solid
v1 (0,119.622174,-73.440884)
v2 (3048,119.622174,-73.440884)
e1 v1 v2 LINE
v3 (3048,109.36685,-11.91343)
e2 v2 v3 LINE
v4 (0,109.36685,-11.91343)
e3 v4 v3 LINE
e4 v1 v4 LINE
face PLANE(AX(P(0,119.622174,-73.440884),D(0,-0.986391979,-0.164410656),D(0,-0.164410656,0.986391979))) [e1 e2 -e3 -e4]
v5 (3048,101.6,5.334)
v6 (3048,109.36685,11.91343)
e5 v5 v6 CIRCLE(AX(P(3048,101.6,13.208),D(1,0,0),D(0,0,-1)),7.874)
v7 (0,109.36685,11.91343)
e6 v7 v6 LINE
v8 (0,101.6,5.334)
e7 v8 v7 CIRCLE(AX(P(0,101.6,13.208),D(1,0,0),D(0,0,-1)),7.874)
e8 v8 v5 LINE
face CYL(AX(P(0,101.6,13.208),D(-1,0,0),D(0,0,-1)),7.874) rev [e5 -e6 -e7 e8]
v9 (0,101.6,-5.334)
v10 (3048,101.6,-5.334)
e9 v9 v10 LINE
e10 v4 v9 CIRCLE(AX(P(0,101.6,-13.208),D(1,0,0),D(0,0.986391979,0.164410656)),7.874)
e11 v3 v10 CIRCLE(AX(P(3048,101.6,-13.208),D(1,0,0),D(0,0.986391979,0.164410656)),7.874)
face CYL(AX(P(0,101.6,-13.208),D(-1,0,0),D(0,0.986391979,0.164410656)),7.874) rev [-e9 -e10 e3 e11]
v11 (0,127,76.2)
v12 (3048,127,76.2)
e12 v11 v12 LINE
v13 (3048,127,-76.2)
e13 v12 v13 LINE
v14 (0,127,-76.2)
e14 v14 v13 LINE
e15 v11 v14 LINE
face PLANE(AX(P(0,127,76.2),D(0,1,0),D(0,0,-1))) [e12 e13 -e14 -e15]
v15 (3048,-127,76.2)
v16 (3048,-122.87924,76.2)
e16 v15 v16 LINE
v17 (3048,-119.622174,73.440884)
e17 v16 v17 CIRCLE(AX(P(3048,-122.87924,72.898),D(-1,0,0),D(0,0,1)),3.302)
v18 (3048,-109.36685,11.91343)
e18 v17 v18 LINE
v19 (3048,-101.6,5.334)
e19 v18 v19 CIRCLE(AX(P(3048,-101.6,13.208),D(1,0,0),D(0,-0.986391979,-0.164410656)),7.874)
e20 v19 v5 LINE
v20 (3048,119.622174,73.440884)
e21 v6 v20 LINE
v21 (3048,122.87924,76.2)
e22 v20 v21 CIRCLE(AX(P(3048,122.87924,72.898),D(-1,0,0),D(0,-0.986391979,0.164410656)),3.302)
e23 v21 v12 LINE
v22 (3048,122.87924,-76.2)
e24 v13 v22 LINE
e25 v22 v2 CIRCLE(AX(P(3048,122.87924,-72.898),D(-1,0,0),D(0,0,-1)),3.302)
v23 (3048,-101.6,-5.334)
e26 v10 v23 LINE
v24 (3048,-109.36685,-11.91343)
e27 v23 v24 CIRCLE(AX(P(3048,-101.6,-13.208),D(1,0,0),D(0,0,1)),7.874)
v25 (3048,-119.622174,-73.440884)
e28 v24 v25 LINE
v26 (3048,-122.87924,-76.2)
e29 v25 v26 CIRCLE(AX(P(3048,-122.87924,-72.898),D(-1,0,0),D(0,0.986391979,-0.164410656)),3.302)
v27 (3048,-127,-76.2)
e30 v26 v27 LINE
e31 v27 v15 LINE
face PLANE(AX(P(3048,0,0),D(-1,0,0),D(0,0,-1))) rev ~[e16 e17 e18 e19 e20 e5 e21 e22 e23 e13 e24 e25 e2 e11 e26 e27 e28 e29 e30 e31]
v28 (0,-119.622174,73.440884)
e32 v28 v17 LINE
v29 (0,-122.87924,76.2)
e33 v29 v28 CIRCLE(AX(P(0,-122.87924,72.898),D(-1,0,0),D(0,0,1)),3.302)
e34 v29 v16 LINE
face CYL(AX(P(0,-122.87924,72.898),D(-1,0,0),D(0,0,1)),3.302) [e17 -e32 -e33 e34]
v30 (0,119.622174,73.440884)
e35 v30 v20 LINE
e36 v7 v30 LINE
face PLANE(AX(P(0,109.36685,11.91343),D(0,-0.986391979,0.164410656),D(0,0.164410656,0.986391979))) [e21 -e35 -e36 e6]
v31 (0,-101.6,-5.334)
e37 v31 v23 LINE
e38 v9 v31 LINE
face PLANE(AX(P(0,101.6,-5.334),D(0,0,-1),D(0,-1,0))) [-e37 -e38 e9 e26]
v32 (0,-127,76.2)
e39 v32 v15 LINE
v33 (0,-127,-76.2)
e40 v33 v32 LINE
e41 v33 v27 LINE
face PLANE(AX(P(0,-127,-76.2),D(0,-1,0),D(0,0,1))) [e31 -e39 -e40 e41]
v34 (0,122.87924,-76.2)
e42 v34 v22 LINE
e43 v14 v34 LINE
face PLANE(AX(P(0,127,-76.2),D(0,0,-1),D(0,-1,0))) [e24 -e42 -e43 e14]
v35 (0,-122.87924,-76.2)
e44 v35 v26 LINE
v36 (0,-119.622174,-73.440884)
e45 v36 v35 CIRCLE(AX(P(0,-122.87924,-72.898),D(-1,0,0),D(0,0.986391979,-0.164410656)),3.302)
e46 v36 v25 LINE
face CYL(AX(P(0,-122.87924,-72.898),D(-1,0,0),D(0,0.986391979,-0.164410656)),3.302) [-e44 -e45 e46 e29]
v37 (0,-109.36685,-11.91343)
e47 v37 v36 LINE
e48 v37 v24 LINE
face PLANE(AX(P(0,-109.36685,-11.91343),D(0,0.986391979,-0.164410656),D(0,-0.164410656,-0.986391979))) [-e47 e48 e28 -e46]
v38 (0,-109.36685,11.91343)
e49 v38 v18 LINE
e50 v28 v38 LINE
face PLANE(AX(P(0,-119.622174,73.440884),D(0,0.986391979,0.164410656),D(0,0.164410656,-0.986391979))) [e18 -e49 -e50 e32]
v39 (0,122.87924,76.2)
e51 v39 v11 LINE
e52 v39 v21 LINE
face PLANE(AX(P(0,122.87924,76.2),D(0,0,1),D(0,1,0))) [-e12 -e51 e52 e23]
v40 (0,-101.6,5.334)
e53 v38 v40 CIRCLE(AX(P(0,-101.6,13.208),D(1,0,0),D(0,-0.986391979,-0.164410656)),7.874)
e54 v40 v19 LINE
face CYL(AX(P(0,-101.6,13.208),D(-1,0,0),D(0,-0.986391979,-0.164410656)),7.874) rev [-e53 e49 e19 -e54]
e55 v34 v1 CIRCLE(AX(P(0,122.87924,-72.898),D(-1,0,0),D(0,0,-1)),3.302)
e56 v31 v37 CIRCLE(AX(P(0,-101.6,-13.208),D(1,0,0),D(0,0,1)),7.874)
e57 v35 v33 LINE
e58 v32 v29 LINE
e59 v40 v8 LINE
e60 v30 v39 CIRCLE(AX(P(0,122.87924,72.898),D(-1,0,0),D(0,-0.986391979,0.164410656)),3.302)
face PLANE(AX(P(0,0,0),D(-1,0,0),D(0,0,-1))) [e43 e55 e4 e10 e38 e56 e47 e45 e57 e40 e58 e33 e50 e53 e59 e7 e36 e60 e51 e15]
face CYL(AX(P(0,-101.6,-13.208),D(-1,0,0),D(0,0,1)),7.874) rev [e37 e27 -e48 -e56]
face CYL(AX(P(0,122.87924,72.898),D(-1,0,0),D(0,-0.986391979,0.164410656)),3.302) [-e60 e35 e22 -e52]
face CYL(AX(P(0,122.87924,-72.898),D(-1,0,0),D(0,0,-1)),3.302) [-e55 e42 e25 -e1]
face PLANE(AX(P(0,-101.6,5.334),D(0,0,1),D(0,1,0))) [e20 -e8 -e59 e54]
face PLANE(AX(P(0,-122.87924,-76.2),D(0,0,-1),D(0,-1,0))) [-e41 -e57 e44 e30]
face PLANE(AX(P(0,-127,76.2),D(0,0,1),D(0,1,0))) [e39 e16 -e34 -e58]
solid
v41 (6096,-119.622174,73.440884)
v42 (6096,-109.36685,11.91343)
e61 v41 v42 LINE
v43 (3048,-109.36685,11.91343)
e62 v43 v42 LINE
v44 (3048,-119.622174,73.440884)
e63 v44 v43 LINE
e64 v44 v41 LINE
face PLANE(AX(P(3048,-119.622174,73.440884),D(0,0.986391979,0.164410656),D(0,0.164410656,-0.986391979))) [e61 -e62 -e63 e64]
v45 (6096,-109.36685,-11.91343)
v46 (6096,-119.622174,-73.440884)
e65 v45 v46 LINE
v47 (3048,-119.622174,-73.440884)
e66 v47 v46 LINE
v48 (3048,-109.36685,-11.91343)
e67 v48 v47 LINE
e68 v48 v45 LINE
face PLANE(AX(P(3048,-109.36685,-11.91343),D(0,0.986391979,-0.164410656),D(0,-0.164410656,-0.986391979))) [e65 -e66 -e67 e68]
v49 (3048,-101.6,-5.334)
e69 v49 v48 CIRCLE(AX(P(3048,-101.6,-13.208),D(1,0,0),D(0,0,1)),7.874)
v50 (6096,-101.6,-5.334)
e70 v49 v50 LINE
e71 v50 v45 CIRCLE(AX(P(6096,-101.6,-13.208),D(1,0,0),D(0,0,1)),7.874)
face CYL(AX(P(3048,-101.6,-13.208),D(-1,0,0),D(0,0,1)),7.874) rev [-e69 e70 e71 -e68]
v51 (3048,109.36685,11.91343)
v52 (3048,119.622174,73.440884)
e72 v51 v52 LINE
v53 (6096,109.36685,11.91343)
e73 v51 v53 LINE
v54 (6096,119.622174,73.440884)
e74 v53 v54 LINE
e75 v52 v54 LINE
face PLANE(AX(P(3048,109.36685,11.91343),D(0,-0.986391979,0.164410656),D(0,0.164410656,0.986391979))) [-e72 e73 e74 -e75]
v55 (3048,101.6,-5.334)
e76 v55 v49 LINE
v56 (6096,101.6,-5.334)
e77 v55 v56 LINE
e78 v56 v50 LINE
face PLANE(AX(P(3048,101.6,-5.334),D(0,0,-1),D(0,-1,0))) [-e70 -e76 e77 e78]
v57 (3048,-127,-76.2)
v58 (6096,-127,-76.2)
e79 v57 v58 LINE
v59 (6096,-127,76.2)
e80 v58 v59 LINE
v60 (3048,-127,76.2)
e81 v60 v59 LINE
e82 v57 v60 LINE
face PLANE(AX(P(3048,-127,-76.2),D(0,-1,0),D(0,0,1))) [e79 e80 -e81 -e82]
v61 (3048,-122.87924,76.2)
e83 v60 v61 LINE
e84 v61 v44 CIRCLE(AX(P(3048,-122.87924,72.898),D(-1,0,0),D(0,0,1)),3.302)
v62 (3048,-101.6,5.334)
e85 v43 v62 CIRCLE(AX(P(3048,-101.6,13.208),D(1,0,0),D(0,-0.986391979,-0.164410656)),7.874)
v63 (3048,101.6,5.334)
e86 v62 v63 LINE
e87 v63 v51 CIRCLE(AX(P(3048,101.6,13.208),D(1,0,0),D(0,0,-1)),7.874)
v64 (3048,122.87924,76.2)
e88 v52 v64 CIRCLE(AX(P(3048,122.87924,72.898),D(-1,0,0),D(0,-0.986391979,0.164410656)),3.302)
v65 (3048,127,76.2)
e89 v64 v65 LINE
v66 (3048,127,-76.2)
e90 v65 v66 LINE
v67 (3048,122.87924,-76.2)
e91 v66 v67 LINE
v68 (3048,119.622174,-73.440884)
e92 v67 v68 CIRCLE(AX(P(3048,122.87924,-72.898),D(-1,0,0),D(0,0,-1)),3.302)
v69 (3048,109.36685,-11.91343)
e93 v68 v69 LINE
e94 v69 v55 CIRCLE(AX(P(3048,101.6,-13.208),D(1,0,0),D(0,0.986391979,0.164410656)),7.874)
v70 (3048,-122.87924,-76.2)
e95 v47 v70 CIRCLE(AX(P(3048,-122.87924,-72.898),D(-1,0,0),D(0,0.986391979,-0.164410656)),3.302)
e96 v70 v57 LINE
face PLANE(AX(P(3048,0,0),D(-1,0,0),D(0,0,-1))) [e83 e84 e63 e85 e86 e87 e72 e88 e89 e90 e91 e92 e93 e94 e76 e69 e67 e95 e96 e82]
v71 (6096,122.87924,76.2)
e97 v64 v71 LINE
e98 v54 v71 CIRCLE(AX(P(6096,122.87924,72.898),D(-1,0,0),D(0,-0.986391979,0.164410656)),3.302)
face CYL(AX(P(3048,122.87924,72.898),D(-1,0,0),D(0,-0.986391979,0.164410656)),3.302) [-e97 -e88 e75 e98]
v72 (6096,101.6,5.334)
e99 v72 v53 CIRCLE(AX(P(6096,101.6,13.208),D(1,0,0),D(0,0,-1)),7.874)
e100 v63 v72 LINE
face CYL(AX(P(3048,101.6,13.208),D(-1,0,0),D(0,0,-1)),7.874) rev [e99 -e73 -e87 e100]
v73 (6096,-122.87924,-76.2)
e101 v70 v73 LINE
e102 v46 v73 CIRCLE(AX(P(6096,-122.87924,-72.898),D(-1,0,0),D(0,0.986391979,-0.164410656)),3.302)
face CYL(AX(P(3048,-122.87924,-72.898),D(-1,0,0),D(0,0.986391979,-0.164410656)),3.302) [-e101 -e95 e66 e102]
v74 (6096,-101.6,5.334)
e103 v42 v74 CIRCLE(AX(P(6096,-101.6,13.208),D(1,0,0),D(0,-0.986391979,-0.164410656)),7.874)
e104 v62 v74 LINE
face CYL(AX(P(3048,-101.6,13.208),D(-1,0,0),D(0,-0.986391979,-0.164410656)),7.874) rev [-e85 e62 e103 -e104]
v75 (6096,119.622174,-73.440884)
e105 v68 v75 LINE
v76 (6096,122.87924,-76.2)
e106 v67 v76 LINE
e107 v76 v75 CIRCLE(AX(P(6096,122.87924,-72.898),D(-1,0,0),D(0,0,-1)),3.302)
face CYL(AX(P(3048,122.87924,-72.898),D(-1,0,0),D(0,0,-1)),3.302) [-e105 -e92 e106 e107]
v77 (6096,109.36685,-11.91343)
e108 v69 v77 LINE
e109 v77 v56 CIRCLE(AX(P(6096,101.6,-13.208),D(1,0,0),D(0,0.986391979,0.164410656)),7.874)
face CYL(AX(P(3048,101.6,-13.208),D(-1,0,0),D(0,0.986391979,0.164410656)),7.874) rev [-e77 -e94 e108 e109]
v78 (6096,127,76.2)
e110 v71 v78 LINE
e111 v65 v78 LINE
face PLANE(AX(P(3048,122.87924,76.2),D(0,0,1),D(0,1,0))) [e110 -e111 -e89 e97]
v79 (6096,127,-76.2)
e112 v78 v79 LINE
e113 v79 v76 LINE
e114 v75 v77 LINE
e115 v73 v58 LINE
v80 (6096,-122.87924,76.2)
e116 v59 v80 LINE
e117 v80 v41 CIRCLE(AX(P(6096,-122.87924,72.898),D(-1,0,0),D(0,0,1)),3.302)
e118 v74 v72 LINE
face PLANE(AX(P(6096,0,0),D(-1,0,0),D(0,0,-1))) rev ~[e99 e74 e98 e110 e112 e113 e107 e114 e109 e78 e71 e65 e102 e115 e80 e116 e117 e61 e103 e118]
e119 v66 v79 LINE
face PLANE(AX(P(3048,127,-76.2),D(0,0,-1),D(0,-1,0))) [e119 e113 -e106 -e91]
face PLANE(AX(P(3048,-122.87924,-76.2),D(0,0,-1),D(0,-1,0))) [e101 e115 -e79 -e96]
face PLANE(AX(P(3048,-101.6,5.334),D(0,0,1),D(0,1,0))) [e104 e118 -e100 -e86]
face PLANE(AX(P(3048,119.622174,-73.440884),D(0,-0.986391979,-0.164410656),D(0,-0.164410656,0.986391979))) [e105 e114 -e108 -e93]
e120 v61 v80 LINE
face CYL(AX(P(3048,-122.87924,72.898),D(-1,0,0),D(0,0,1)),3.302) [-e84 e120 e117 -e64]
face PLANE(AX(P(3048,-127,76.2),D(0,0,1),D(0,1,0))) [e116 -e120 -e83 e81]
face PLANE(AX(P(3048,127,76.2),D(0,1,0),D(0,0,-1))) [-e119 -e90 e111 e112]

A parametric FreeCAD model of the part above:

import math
import FreeCAD as App
import Part
import Sketcher
from FreeCAD import Vector
Q = App.Units.Quantity

doc = App.newDocument("Part")
body = doc.addObject("PartDesign::Body", "Body")

# Sketch on YZ plane
sketch1 = body.newObject("Sketcher::SketchObject", "Sketch")
sketch1.AttachmentSupport = (doc.getObject("YZ_Plane"), [""])
sketch1.MapMode = "FlatFace"
sketch1.addGeometry([
    Part.LineSegment(Vector(122.9, -76.2, 0), Vector(127, -76.2, 0)),  # 0
    Part.LineSegment(Vector(127, -76.2, 0), Vector(127, 76.2, 0)),  # 1
    Part.LineSegment(Vector(127, 76.2, 0), Vector(122.9, 76.2, 0)),  # 2
    Part.ArcOfCircle(Part.Circle(Vector(122.9, 72.9, 0), Vector(0, 0, 1), 3.3), math.radians(90), math.radians(171)),  # 3
    Part.LineSegment(Vector(119.6, 73.4, 0), Vector(109.4, 11.9, 0)),  # 4
    Part.ArcOfCircle(Part.Circle(Vector(101.6, 13.2, 0), Vector(0, 0, 1), 7.9), math.radians(-90), math.radians(-9)),  # 5
    Part.LineSegment(Vector(101.6, 5.3, 0), Vector(-101.6, 5.3, 0)),  # 6
    Part.ArcOfCircle(Part.Circle(Vector(-101.6, 13.2, 0), Vector(0, 0, 1), 7.9), math.radians(-171), math.radians(-90)),  # 7
    Part.LineSegment(Vector(-109.4, 11.9, 0), Vector(-119.6, 73.4, 0)),  # 8
    Part.ArcOfCircle(Part.Circle(Vector(-122.9, 72.9, 0), Vector(0, 0, 1), 3.3), math.radians(9), math.radians(90)),  # 9
    Part.LineSegment(Vector(-122.9, 76.2, 0), Vector(-127, 76.2, 0)),  # 10
    Part.LineSegment(Vector(-127, 76.2, 0), Vector(-127, -76.2, 0)),  # 11
    Part.LineSegment(Vector(-127, -76.2, 0), Vector(-122.9, -76.2, 0)),  # 12
    Part.ArcOfCircle(Part.Circle(Vector(-122.9, -72.9, 0), Vector(0, 0, 1), 3.3), math.radians(-90), math.radians(-9)),  # 13
    Part.LineSegment(Vector(-119.6, -73.4, 0), Vector(-109.4, -11.9, 0)),  # 14
    Part.ArcOfCircle(Part.Circle(Vector(-101.6, -13.2, 0), Vector(0, 0, 1), 7.9), math.radians(90), math.radians(171)),  # 15
    Part.LineSegment(Vector(-101.6, -5.3, 0), Vector(101.6, -5.3, 0)),  # 16
    Part.ArcOfCircle(Part.Circle(Vector(101.6, -13.2, 0), Vector(0, 0, 1), 7.9), math.radians(9), math.radians(90)),  # 17
    Part.LineSegment(Vector(109.4, -11.9, 0), Vector(119.6, -73.4, 0)),  # 18
    Part.ArcOfCircle(Part.Circle(Vector(122.9, -72.9, 0), Vector(0, 0, 1), 3.3), math.radians(-171), math.radians(-90)),  # 19
], False)
sketch1.addConstraint([
    Sketcher.Constraint("Coincident", 0, 2, 1, 1),
    Sketcher.Constraint("Coincident", 1, 2, 2, 1),
    Sketcher.Constraint("Tangent", 2, 2, 3, 1),
    Sketcher.Constraint("Tangent", 3, 2, 4, 1),
    Sketcher.Constraint("Tangent", 4, 2, 5, 2),
    Sketcher.Constraint("Tangent", 5, 1, 6, 1),
    Sketcher.Constraint("Tangent", 6, 2, 7, 2),
    Sketcher.Constraint("Tangent", 7, 1, 8, 1),
    Sketcher.Constraint("Tangent", 8, 2, 9, 1),
    Sketcher.Constraint("Tangent", 9, 2, 10, 1),
    Sketcher.Constraint("Coincident", 10, 2, 11, 1),
    Sketcher.Constraint("Coincident", 11, 2, 12, 1),
    Sketcher.Constraint("Tangent", 12, 2, 13, 1),
    Sketcher.Constraint("Tangent", 13, 2, 14, 1),
    Sketcher.Constraint("Tangent", 14, 2, 15, 2),
    Sketcher.Constraint("Tangent", 15, 1, 16, 1),
    Sketcher.Constraint("Tangent", 16, 2, 17, 2),
    Sketcher.Constraint("Tangent", 17, 1, 18, 1),
    Sketcher.Constraint("Tangent", 18, 2, 19, 1),
    Sketcher.Constraint("Tangent", 19, 2, 0, 1),
    Sketcher.Constraint("Horizontal", 0),
    Sketcher.Constraint("Vertical", 1),
    Sketcher.Constraint("Horizontal", 2),
    Sketcher.Constraint("Horizontal", 6),
    Sketcher.Constraint("Horizontal", 10),
    Sketcher.Constraint("Vertical", 11),
    Sketcher.Constraint("Horizontal", 12),
    Sketcher.Constraint("Horizontal", 16),
    Sketcher.Constraint("Equal", 5, 7),
    Sketcher.Constraint("Equal", 3, 9),
    Sketcher.Constraint("Equal", 9, 13),
    Sketcher.Constraint("Equal", 7, 15),
    Sketcher.Constraint("Equal", 15, 17),
    Sketcher.Constraint("Equal", 13, 19),
    Sketcher.Constraint("Symmetric", 3, 3, 13, 3, -1, 1),
    Sketcher.Constraint("Symmetric", 5, 3, 15, 3, -1, 1),
    Sketcher.Constraint("Symmetric", 9, 3, 19, 3, -1, 1),
    Sketcher.Constraint("Symmetric", 3, 3, 9, 3, -2),
    Sketcher.Constraint("Parallel", 8, 18),
    Sketcher.Constraint("Horizontal", 4, 2, 7, 1),
    Sketcher.Constraint("Equal", 2, 10),
    Sketcher.Constraint("DistanceX", 6, 2, 6, 1, Q("8 in")),
    Sketcher.Constraint("DistanceY", 1, 1, 1, 2, Q("6 in")),
    Sketcher.Constraint("Radius", 3, Q("0.13 in")),
    Sketcher.Constraint("Radius", 5, Q("0.31 in")),
    Sketcher.Constraint("DistanceX", -1, 1, 0, 2, Q("5 in")),
    Sketcher.Constraint("DistanceY", -1, 1, 5, 3, Q("0.52 in")),
    Sketcher.Constraint("DistanceX", 0, 1, 0, 2, 4.12076),
])
pad1 = body.newObject("PartDesign::Pad", "Pad")
pad1.Profile = sketch1
pad1.Length = Q("120 in")
body2 = doc.addObject("PartDesign::Body", "Body001")

# Sketch on YZ plane
sketch2 = body2.newObject("Sketcher::SketchObject", "Sketch001")
sketch2.AttachmentSupport = (doc.getObject("YZ_Plane001"), [""])
sketch2.MapMode = "FlatFace"
sketch2.AttachmentOffset = App.Placement(Vector(0, 0, 120 * 25.4), App.Rotation())
sketch2.addGeometry([
    Part.LineSegment(Vector(122.9, -76.2, 0), Vector(127, -76.2, 0)),  # 0
    Part.LineSegment(Vector(127, -76.2, 0), Vector(127, 76.2, 0)),  # 1
    Part.LineSegment(Vector(127, 76.2, 0), Vector(122.9, 76.2, 0)),  # 2
    Part.ArcOfCircle(Part.Circle(Vector(122.9, 72.9, 0), Vector(0, 0, 1), 3.3), math.radians(90), math.radians(171)),  # 3
    Part.LineSegment(Vector(119.6, 73.4, 0), Vector(109.4, 11.9, 0)),  # 4
    Part.ArcOfCircle(Part.Circle(Vector(101.6, 13.2, 0), Vector(0, 0, 1), 7.9), math.radians(-90), math.radians(-9)),  # 5
    Part.LineSegment(Vector(101.6, 5.3, 0), Vector(-101.6, 5.3, 0)),  # 6
    Part.ArcOfCircle(Part.Circle(Vector(-101.6, 13.2, 0), Vector(0, 0, 1), 7.9), math.radians(-171), math.radians(-90)),  # 7
    Part.LineSegment(Vector(-109.4, 11.9, 0), Vector(-119.6, 73.4, 0)),  # 8
    Part.ArcOfCircle(Part.Circle(Vector(-122.9, 72.9, 0), Vector(0, 0, 1), 3.3), math.radians(9), math.radians(90)),  # 9
    Part.LineSegment(Vector(-122.9, 76.2, 0), Vector(-127, 76.2, 0)),  # 10
    Part.LineSegment(Vector(-127, 76.2, 0), Vector(-127, -76.2, 0)),  # 11
    Part.LineSegment(Vector(-127, -76.2, 0), Vector(-122.9, -76.2, 0)),  # 12
    Part.ArcOfCircle(Part.Circle(Vector(-122.9, -72.9, 0), Vector(0, 0, 1), 3.3), math.radians(-90), math.radians(-9)),  # 13
    Part.LineSegment(Vector(-119.6, -73.4, 0), Vector(-109.4, -11.9, 0)),  # 14
    Part.ArcOfCircle(Part.Circle(Vector(-101.6, -13.2, 0), Vector(0, 0, 1), 7.9), math.radians(90), math.radians(171)),  # 15
    Part.LineSegment(Vector(-101.6, -5.3, 0), Vector(101.6, -5.3, 0)),  # 16
    Part.ArcOfCircle(Part.Circle(Vector(101.6, -13.2, 0), Vector(0, 0, 1), 7.9), math.radians(9), math.radians(90)),  # 17
    Part.LineSegment(Vector(109.4, -11.9, 0), Vector(119.6, -73.4, 0)),  # 18
    Part.ArcOfCircle(Part.Circle(Vector(122.9, -72.9, 0), Vector(0, 0, 1), 3.3), math.radians(-171), math.radians(-90)),  # 19
], False)
sketch2.addConstraint([
    Sketcher.Constraint("Coincident", 0, 2, 1, 1),
    Sketcher.Constraint("Coincident", 1, 2, 2, 1),
    Sketcher.Constraint("Tangent", 2, 2, 3, 1),
    Sketcher.Constraint("Tangent", 3, 2, 4, 1),
    Sketcher.Constraint("Tangent", 4, 2, 5, 2),
    Sketcher.Constraint("Tangent", 5, 1, 6, 1),
    Sketcher.Constraint("Tangent", 6, 2, 7, 2),
    Sketcher.Constraint("Tangent", 7, 1, 8, 1),
    Sketcher.Constraint("Tangent", 8, 2, 9, 1),
    Sketcher.Constraint("Tangent", 9, 2, 10, 1),
    Sketcher.Constraint("Coincident", 10, 2, 11, 1),
    Sketcher.Constraint("Coincident", 11, 2, 12, 1),
    Sketcher.Constraint("Tangent", 12, 2, 13, 1),
    Sketcher.Constraint("Tangent", 13, 2, 14, 1),
    Sketcher.Constraint("Tangent", 14, 2, 15, 2),
    Sketcher.Constraint("Tangent", 15, 1, 16, 1),
    Sketcher.Constraint("Tangent", 16, 2, 17, 2),
    Sketcher.Constraint("Tangent", 17, 1, 18, 1),
    Sketcher.Constraint("Tangent", 18, 2, 19, 1),
    Sketcher.Constraint("Tangent", 19, 2, 0, 1),
    Sketcher.Constraint("Horizontal", 0),
    Sketcher.Constraint("Vertical", 1),
    Sketcher.Constraint("Horizontal", 2),
    Sketcher.Constraint("Horizontal", 6),
    Sketcher.Constraint("Horizontal", 10),
    Sketcher.Constraint("Vertical", 11),
    Sketcher.Constraint("Horizontal", 12),
    Sketcher.Constraint("Horizontal", 16),
    Sketcher.Constraint("Equal", 5, 7),
    Sketcher.Constraint("Equal", 3, 9),
    Sketcher.Constraint("Equal", 9, 13),
    Sketcher.Constraint("Equal", 7, 15),
    Sketcher.Constraint("Equal", 15, 17),
    Sketcher.Constraint("Equal", 13, 19),
    Sketcher.Constraint("Symmetric", 3, 3, 13, 3, -1, 1),
    Sketcher.Constraint("Symmetric", 5, 3, 15, 3, -1, 1),
    Sketcher.Constraint("Symmetric", 9, 3, 19, 3, -1, 1),
    Sketcher.Constraint("Symmetric", 3, 3, 9, 3, -2),
    Sketcher.Constraint("Parallel", 8, 18),
    Sketcher.Constraint("Horizontal", 4, 2, 7, 1),
    Sketcher.Constraint("Equal", 2, 10),
    Sketcher.Constraint("DistanceX", 6, 2, 6, 1, Q("8 in")),
    Sketcher.Constraint("DistanceY", 1, 1, 1, 2, Q("6 in")),
    Sketcher.Constraint("Radius", 3, Q("0.13 in")),
    Sketcher.Constraint("Radius", 5, Q("0.31 in")),
    Sketcher.Constraint("DistanceX", -1, 1, 0, 2, Q("5 in")),
    Sketcher.Constraint("DistanceY", -1, 1, 5, 3, Q("0.52 in")),
    Sketcher.Constraint("DistanceX", 0, 1, 0, 2, 4.12076),
])
pad2 = body2.newObject("PartDesign::Pad", "Pad001")
pad2.Profile = sketch2
pad2.Length = Q("120 in")

doc.recompute()
